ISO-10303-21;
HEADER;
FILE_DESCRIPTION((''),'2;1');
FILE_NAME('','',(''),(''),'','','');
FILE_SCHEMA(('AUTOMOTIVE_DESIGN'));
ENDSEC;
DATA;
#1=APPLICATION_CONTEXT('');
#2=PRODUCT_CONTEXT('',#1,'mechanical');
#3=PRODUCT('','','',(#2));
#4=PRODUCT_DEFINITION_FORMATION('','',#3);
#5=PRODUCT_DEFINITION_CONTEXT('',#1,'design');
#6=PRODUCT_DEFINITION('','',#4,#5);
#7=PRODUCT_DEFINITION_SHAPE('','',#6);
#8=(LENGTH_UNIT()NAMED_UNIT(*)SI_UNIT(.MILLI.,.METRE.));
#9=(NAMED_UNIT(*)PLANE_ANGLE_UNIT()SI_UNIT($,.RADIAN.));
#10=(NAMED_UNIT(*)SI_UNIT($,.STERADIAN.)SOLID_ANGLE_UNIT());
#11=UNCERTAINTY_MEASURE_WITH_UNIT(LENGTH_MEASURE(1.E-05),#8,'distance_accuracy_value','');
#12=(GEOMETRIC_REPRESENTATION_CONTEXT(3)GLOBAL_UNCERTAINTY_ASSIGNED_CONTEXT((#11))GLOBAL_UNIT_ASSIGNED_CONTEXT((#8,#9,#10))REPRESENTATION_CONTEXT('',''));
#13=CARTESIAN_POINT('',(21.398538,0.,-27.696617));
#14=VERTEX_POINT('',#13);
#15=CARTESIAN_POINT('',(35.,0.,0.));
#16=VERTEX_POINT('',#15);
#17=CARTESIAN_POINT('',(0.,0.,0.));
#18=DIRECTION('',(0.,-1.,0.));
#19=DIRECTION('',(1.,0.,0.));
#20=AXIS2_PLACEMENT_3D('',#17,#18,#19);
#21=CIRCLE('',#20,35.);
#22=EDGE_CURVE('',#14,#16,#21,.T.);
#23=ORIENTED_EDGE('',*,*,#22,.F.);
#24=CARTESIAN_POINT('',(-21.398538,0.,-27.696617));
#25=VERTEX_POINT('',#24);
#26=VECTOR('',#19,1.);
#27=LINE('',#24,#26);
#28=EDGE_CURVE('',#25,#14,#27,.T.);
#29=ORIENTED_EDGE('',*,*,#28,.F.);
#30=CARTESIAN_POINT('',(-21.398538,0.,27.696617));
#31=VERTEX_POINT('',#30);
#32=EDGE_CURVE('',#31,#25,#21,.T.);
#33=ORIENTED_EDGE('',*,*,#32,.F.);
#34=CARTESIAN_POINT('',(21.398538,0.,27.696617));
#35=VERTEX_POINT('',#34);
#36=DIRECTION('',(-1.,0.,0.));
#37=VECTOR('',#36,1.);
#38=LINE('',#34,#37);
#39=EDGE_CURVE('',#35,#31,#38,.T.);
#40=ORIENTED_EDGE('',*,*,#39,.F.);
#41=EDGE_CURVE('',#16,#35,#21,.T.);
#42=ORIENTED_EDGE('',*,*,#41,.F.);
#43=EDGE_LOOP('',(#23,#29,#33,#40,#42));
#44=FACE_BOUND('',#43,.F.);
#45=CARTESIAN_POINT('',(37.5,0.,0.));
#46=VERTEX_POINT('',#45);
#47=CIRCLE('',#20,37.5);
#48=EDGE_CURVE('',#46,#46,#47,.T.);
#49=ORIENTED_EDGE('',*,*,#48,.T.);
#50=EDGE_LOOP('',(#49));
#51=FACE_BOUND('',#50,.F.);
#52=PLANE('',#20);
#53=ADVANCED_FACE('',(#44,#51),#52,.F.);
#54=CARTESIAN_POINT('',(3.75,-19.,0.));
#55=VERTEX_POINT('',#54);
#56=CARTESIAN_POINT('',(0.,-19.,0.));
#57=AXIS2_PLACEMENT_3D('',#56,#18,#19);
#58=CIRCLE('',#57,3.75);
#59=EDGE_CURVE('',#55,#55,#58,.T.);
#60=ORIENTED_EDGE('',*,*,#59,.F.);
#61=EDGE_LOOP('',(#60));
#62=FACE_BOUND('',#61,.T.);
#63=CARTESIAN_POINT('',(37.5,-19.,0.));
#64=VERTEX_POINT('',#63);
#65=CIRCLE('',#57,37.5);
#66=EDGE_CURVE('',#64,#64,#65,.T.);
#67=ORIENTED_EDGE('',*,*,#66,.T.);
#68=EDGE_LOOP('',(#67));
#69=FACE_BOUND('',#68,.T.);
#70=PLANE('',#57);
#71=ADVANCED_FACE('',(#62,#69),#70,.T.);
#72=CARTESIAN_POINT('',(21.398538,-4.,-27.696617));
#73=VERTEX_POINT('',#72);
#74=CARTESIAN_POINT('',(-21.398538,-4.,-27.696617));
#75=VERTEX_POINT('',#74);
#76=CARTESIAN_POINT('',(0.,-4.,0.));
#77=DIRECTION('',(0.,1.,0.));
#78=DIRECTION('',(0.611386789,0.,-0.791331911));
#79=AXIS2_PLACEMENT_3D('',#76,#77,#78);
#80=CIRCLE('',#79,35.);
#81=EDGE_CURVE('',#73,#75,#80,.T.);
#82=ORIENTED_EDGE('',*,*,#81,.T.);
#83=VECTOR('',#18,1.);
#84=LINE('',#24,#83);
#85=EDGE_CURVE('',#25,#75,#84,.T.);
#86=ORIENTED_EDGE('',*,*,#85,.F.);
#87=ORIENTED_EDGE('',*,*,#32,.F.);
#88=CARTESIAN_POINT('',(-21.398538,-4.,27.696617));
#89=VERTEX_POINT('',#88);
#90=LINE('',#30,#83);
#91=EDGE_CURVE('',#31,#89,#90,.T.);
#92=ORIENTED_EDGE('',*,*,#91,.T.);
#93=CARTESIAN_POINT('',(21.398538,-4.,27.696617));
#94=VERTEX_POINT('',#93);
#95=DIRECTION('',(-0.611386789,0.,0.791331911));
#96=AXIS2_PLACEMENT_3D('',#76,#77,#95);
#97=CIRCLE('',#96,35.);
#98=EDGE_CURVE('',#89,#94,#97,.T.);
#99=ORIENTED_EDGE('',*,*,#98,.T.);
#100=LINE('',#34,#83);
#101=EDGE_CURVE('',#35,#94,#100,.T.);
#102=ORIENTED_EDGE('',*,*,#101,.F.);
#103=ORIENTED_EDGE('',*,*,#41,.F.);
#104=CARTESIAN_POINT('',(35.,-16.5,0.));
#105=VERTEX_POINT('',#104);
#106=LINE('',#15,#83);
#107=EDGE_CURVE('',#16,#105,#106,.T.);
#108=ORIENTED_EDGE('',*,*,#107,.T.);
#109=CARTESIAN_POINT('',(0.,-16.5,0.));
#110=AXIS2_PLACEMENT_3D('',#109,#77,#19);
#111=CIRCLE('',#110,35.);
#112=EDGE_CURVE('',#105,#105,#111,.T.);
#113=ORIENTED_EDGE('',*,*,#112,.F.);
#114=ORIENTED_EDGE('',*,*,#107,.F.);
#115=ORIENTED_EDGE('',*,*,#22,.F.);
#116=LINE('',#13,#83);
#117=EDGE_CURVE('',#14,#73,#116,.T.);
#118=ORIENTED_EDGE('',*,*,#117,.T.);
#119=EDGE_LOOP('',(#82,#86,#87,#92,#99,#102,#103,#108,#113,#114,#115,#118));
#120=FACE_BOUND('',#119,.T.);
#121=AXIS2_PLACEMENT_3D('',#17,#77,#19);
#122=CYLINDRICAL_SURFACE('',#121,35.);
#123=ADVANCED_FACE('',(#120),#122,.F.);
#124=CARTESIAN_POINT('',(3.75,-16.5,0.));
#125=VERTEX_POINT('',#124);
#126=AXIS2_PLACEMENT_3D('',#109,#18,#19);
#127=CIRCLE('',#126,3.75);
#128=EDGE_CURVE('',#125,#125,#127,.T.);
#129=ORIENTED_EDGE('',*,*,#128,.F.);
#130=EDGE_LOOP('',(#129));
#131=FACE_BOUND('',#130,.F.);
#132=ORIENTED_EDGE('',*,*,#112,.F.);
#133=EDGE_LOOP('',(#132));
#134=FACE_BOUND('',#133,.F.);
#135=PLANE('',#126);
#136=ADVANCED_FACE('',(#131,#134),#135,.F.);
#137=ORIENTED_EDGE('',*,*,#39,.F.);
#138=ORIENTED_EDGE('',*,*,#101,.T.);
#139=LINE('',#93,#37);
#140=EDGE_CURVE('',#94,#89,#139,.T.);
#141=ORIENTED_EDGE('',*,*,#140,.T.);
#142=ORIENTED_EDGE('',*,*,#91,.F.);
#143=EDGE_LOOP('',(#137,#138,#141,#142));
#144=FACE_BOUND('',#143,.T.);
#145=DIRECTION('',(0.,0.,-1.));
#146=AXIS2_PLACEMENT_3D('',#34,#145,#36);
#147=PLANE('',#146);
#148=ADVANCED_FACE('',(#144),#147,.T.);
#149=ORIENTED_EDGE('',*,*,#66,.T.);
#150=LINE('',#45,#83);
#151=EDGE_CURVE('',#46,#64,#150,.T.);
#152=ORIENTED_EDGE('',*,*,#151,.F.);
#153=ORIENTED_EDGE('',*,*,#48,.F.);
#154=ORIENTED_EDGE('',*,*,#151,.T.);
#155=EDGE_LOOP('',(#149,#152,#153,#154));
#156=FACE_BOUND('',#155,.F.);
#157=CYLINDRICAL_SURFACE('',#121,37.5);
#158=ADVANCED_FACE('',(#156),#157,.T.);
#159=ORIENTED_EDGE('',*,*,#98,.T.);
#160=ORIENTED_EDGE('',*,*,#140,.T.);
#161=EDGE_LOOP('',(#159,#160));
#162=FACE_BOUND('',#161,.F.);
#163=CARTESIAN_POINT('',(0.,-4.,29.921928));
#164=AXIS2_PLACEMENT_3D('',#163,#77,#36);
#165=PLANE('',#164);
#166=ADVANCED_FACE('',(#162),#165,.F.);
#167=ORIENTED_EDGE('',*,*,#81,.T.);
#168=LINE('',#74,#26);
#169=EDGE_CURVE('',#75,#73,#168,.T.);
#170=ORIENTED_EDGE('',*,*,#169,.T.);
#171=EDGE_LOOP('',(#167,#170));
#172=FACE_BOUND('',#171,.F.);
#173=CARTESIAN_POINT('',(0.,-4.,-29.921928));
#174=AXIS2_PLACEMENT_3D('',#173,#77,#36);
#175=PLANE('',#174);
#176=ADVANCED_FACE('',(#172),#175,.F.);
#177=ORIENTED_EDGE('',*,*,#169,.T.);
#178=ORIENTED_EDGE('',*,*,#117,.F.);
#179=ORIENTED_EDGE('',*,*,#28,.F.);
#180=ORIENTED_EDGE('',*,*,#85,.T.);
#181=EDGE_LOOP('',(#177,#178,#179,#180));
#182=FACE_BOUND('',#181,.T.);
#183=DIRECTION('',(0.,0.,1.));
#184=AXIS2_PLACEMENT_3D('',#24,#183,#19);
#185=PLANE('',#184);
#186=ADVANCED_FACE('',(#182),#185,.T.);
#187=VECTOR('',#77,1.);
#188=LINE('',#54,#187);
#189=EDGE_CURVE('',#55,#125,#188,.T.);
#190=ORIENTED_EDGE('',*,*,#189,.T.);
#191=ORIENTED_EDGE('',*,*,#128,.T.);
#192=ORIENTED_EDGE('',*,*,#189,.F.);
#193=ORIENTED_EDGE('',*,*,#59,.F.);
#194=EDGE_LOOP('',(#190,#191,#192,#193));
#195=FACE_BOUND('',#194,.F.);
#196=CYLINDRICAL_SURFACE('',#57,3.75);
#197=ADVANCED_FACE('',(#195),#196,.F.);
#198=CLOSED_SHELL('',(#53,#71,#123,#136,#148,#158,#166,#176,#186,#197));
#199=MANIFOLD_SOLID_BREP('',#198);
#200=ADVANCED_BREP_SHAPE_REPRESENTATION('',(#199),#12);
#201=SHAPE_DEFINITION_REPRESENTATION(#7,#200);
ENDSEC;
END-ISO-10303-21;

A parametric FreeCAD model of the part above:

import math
import FreeCAD as App
import Part
import Sketcher

V = App.Vector
Q = App.Units.Quantity


def faces_at(feature, points):
    """Names of the faces that lie closest to the given points."""
    faces = feature.Shape.Faces
    near = lambda p: min(range(len(faces)), key=lambda i: faces[i].distToShape(Part.Vertex(*p))[0])
    return sorted({f"Face{near(p) + 1}" for p in points})

doc = App.newDocument("Part")
params = doc.addObject("Spreadsheet::Sheet", "Params")
for row, (alias, value) in enumerate([
    ("sketch1_diameter", "75 mm"),
    ("pad1_length", "19 mm"),
    ("thickness_wall", "2.5 mm"),
    ("sketch2_diameter", "7.5 mm"),
    ("sketch3_radius", "35 mm"),
    ("pad2_length", "4 mm"),
    ("sketch4_radius", "35 mm"),
    ("pad3_length", "4 mm"),
], start=1):
    params.set(f"A{row}", alias)
    params.set(f"B{row}", "=" + value)
    params.setAlias(f"B{row}", alias)

body = doc.addObject("PartDesign::Body", "Body")

sketch1 = doc.addObject("Sketcher::SketchObject", "Sketch")
body.addObject(sketch1)
sketch1.AttachmentSupport = (doc.XZ_Plane, [""])
sketch1.MapMode = "FlatFace"
sketch1.addGeometry(Part.Circle(V(0, 0, 0), V(0, 0, 1), 38), False)
sketch1.addConstraint(Sketcher.Constraint("Coincident", 0, 3, -1, 1))
sketch1.addConstraint(Sketcher.Constraint("Diameter", 0, Q("75 mm")))
sketch1.setExpression("Constraints[1]", "Params.sketch1_diameter")
pad1 = doc.addObject("PartDesign::Pad", "Pad")
body.addObject(pad1)
pad1.Profile = sketch1
pad1.setExpression("Length", "Params.pad1_length")
doc.recompute()

thickness = doc.addObject("PartDesign::Thickness", "Thickness")
body.addObject(thickness)
thickness.Base = (pad1, faces_at(pad1, [(0, 0, 0)]))
thickness.setExpression("Value", "Params.thickness_wall")
thickness.Reversed = True
thickness.Join = "Arc"

sketch2 = doc.addObject("Sketcher::SketchObject", "Sketch001")
body.addObject(sketch2)
sketch2.AttachmentSupport = (doc.XZ_Plane, [""])
sketch2.MapMode = "FlatFace"
sketch2.AttachmentOffset = App.Placement(V(0, 0, 19), App.Rotation())
sketch2.addGeometry(Part.Circle(V(0, 0, 0), V(0, 0, 1), 3.8), False)
sketch2.addConstraint(Sketcher.Constraint("Coincident", 0, 3, -1, 1))
sketch2.addConstraint(Sketcher.Constraint("Diameter", 0, Q("7.5 mm")))
sketch2.setExpression("Constraints[1]", "Params.sketch2_diameter")
pocket1 = doc.addObject("PartDesign::Pocket", "Pocket")
body.addObject(pocket1)
pocket1.Profile = sketch2
pocket1.Type = "ThroughAll"

sketch3 = doc.addObject("Sketcher::SketchObject", "Sketch002")
body.addObject(sketch3)
sketch3.AttachmentSupport = (doc.XZ_Plane, [""])
sketch3.MapMode = "FlatFace"
sketch3.addGeometry(Part.ArcOfCircle(Part.Circle(V(0, 0, 0), V(0, 0, 1), 35), math.radians(52), math.radians(128)), False)
sketch3.addGeometry(Part.LineSegment(V(21, 28, 0), V(-21, 28, 0)), False)
sketch3.addConstraint(Sketcher.Constraint("Coincident", 0, 1, 1, 1))
sketch3.addConstraint(Sketcher.Constraint("Coincident", 1, 2, 0, 2))
sketch3.addConstraint(Sketcher.Constraint("Horizontal", 1))
sketch3.addConstraint(Sketcher.Constraint("Coincident", 0, 3, -1, 1))
sketch3.addConstraint(Sketcher.Constraint("Radius", 0, Q("35 mm")))
sketch3.addConstraint(Sketcher.Constraint("DistanceX", 1, 2, 1, 1, Q("42.797075 mm")))
sketch3.setExpression("Constraints[4]", "Params.sketch3_radius")
pad2 = doc.addObject("PartDesign::Pad", "Pad001")
body.addObject(pad2)
pad2.Profile = sketch3
pad2.setExpression("Length", "Params.pad2_length")

sketch4 = doc.addObject("Sketcher::SketchObject", "Sketch003")
body.addObject(sketch4)
sketch4.AttachmentSupport = (doc.XZ_Plane, [""])
sketch4.MapMode = "FlatFace"
sketch4.addGeometry(Part.LineSegment(V(-21, -28, 0), V(21, -28, 0)), False)
sketch4.addGeometry(Part.ArcOfCircle(Part.Circle(V(0, 0, 0), V(0, 0, 1), 35), math.radians(-128), math.radians(-52)), False)
sketch4.addConstraint(Sketcher.Constraint("Coincident", 0, 1, 1, 1))
sketch4.addConstraint(Sketcher.Constraint("Coincident", 1, 2, 0, 2))
sketch4.addConstraint(Sketcher.Constraint("Horizontal", 0))
sketch4.addConstraint(Sketcher.Constraint("Coincident", 1, 3, -1, 1))
sketch4.addConstraint(Sketcher.Constraint("Radius", 1, Q("35 mm")))
sketch4.addConstraint(Sketcher.Constraint("DistanceX", 0, 1, 0, 2, Q("42.797075 mm")))
sketch4.setExpression("Constraints[4]", "Params.sketch4_radius")
pad3 = doc.addObject("PartDesign::Pad", "Pad002")
body.addObject(pad3)
pad3.Profile = sketch4
pad3.setExpression("Length", "Params.pad3_length")

doc.recompute()
